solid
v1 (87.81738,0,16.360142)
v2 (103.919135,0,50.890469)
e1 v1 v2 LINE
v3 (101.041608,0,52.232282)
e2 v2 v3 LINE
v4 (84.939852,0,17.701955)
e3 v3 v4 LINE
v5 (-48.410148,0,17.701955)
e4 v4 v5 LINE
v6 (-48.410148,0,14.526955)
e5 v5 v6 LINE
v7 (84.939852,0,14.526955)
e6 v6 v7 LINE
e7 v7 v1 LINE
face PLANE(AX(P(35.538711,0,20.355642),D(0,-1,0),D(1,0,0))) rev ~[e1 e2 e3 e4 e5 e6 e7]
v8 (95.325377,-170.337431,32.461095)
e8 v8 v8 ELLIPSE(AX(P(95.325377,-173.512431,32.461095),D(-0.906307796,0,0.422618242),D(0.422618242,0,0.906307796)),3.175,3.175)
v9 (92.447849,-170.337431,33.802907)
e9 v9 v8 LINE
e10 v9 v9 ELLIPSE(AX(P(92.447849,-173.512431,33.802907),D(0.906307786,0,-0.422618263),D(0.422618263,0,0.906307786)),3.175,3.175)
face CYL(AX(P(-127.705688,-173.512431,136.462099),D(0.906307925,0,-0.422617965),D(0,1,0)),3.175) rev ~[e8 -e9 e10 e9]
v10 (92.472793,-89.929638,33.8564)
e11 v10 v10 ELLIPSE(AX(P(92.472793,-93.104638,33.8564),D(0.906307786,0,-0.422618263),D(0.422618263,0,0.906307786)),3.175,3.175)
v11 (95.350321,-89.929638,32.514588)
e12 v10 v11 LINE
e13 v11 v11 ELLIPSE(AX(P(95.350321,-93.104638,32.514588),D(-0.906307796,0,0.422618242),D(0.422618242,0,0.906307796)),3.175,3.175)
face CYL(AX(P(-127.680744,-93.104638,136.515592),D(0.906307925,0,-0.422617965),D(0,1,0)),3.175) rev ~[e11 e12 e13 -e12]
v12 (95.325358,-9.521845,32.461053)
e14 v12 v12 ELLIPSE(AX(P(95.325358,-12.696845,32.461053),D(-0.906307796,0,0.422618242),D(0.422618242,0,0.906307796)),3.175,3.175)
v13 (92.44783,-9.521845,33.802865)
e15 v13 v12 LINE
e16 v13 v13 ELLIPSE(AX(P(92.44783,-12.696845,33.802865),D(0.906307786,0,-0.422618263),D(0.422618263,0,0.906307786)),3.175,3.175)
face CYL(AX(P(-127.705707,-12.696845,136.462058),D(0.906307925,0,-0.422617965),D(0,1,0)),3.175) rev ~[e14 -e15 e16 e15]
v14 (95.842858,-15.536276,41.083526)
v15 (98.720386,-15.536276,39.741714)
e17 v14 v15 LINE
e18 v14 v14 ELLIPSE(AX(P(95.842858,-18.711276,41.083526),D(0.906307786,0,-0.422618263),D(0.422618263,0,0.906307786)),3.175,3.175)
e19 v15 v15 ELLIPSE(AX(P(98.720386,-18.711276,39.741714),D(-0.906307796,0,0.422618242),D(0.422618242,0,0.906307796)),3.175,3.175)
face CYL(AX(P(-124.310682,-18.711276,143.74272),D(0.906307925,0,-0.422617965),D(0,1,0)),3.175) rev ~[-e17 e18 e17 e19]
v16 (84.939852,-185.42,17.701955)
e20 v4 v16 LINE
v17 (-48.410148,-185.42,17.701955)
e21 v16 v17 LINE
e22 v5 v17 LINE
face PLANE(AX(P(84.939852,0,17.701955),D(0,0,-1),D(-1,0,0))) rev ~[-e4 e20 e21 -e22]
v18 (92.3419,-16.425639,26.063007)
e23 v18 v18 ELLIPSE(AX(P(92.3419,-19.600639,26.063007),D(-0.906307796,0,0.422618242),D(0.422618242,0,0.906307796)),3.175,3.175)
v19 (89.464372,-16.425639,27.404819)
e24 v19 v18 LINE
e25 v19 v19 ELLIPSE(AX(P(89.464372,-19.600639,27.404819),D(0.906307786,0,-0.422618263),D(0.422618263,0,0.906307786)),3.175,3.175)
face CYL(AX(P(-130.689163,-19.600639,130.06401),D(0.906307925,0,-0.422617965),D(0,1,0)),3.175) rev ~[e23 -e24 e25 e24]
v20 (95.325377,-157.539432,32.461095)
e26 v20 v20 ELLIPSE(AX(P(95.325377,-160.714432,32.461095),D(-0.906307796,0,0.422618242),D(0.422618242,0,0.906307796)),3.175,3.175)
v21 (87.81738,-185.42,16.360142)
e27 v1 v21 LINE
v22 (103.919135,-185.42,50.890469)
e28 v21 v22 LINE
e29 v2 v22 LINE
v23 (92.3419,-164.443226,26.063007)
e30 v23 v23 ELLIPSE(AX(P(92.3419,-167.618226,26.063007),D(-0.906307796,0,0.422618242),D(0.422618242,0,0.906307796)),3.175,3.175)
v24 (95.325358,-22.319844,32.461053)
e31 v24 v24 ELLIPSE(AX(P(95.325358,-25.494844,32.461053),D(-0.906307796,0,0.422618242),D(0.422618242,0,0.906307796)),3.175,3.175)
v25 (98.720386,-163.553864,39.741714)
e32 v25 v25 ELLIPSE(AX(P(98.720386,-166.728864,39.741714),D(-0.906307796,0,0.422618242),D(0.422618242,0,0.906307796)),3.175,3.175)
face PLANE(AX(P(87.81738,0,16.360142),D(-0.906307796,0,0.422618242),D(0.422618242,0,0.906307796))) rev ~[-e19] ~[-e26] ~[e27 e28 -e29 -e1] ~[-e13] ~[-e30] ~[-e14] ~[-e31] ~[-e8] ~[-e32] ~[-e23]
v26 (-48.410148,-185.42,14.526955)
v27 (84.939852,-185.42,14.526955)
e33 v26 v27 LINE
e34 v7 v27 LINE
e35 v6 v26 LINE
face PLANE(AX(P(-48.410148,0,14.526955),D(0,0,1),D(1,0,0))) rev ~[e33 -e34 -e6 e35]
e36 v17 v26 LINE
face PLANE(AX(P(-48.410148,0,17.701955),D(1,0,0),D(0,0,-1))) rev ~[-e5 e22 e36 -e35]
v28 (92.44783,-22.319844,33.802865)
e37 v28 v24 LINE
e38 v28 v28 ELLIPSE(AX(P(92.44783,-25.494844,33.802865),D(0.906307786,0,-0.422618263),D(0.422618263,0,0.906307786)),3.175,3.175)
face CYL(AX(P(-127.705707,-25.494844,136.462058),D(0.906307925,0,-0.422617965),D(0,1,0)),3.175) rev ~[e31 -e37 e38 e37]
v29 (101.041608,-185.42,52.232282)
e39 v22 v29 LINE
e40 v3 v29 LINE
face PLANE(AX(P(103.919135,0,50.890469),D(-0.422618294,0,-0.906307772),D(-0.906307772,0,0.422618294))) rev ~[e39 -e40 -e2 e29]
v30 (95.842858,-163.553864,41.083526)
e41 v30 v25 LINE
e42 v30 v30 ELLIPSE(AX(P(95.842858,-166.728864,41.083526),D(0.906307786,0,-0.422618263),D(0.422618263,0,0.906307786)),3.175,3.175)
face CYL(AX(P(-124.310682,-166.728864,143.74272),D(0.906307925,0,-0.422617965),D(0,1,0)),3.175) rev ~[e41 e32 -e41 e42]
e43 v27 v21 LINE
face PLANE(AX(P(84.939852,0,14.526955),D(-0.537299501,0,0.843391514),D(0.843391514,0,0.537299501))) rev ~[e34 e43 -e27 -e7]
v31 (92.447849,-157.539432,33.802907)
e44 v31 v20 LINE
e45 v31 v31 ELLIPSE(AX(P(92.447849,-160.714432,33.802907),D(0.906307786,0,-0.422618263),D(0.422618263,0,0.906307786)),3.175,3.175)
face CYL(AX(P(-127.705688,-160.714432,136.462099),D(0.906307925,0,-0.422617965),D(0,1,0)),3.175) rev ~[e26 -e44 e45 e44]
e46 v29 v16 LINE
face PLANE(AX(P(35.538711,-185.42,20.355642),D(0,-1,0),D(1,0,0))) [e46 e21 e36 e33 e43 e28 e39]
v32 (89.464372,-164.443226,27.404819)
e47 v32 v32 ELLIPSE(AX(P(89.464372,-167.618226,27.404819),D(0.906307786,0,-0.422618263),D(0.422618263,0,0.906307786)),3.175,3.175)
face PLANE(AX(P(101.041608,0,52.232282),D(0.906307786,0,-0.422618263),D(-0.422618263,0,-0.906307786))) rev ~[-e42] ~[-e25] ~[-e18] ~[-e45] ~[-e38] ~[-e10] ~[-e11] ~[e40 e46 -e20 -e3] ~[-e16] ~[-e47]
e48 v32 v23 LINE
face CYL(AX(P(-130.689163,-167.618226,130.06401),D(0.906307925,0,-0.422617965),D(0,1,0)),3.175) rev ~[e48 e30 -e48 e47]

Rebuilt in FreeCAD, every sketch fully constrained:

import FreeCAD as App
import Part
import Sketcher
from FreeCAD import Vector
Q = App.Units.Quantity

doc = App.newDocument("Part")
body = doc.addObject("PartDesign::Body", "Body")

# Sketch on XZ plane
sketch1 = doc.addObject("Sketcher::SketchObject", "Sketch")
body.addObject(sketch1)
sketch1.AttachmentSupport = (doc.XZ_Plane, [""])
sketch1.MapMode = "FlatFace"
sketch1.addGeometry(Part.LineSegment(Vector(84.9, 17.7, 0), Vector(-48.4, 17.7, 0)), False)
sketch1.addGeometry(Part.LineSegment(Vector(-48.4, 17.7, 0), Vector(-48.4, 14.5, 0)), False)
sketch1.addGeometry(Part.LineSegment(Vector(-48.4, 14.5, 0), Vector(84.9, 14.5, 0)), False)
sketch1.addGeometry(Part.LineSegment(Vector(84.9, 14.5, 0), Vector(87.8, 16.4, 0)), False)
sketch1.addGeometry(Part.LineSegment(Vector(87.8, 16.4, 0), Vector(103.9, 50.9, 0)), False)
sketch1.addGeometry(Part.LineSegment(Vector(103.9, 50.9, 0), Vector(101, 52.2, 0)), False)
sketch1.addGeometry(Part.LineSegment(Vector(101, 52.2, 0), Vector(84.9, 17.7, 0)), False)
sketch1.addConstraint(Sketcher.Constraint("Coincident", 0, 2, 1, 1))
sketch1.addConstraint(Sketcher.Constraint("Coincident", 1, 2, 2, 1))
sketch1.addConstraint(Sketcher.Constraint("Coincident", 2, 2, 3, 1))
sketch1.addConstraint(Sketcher.Constraint("Coincident", 3, 2, 4, 1))
sketch1.addConstraint(Sketcher.Constraint("Coincident", 4, 2, 5, 1))
sketch1.addConstraint(Sketcher.Constraint("Coincident", 5, 2, 6, 1))
sketch1.addConstraint(Sketcher.Constraint("Coincident", 6, 2, 0, 1))
sketch1.addConstraint(Sketcher.Constraint("Horizontal", 0))
sketch1.addConstraint(Sketcher.Constraint("Vertical", 1))
sketch1.addConstraint(Sketcher.Constraint("Horizontal", 2))
sketch1.addConstraint(Sketcher.Constraint("Perpendicular", 4, 5))
sketch1.addConstraint(Sketcher.Constraint("Perpendicular", 5, 6))
sketch1.addConstraint(Sketcher.Constraint("Vertical", 2, 2, 6, 2))
sketch1.addConstraint(Sketcher.Constraint("Equal", 4, 6))
sketch1.addConstraint(Sketcher.Constraint("Angle", 4, Q("65.000001 deg")))
sketch1.addConstraint(Sketcher.Constraint("Distance", 4, Q("1.5 in")))
sketch1.addConstraint(Sketcher.Constraint("DistanceX", 0, 2, 0, 1, Q("5.25 in")))
sketch1.addConstraint(Sketcher.Constraint("Angle", 3, Q("32.499993 deg")))
sketch1.addConstraint(Sketcher.Constraint("DistanceY", 1, 2, 1, 1, Q("0.125 in")))
sketch1.addConstraint(Sketcher.Constraint("DistanceY", -1, 1, 3, 2, Q("0.6441001 in")))
sketch1.addConstraint(Sketcher.Constraint("DistanceX", -1, 1, 2, 2, Q("84.939852 mm")))
pad1 = doc.addObject("PartDesign::Pad", "Pad")
body.addObject(pad1)
pad1.Profile = sketch1
pad1.Length = Q("7.3 in")

# Sketch on an angled plane
sketch2 = doc.addObject("Sketcher::SketchObject", "Sketch001")
body.addObject(sketch2)
sketch2.Placement = App.Placement(Vector(62.988836, 0, -29.372151), App.Rotation(Vector(0, -1, 0), Vector(0.422617965, 0, 0.906307925), Vector(-0.906307925, 0, 0.422617965), "ZXY"))
sketch2.addGeometry(Part.Circle(Vector(18.7, 77.7, 0), Vector(0, 0, 1), 3.2), False)
sketch2.addConstraint(Sketcher.Constraint("Diameter", 0, Q("0.25 in")))
sketch2.addConstraint(Sketcher.Constraint("DistanceY", -1, 1, 0, 3, Q("3.0606 in")))
sketch2.addConstraint(Sketcher.Constraint("DistanceX", -1, 1, 0, 3, Q("18.711276 mm")))
doc.recompute()
hole = doc.addObject("PartDesign::Hole", "Hole")
body.addObject(hole)
hole.Profile = sketch2
hole.ThreadType = "None"
hole.Diameter = Q("0.25 in")
hole.DepthType = "ThroughAll"

# Sketch on an angled plane
sketch3 = doc.addObject("Sketcher::SketchObject", "Sketch002")
body.addObject(sketch3)
sketch3.Placement = App.Placement(Vector(62.988836, 0, -29.372151), App.Rotation(Vector(0, -1, 0), Vector(0.422617965, 0, 0.906307925), Vector(-0.906307925, 0, 0.422617965), "ZXY"))
sketch3.addGeometry(Part.Circle(Vector(12.7, 69.7, 0), Vector(0, 0, 1), 3.2), False)
sketch3.addConstraint(Sketcher.Constraint("Diameter", 0, Q("0.25 in")))
sketch3.addConstraint(Sketcher.Constraint("DistanceY", -1, 1, 0, 3, Q("69.705918 mm")))
sketch3.addConstraint(Sketcher.Constraint("DistanceX", -1, 1, 0, 3, Q("12.696845 mm")))
doc.recompute()
hole2 = doc.addObject("PartDesign::Hole", "Hole001")
body.addObject(hole2)
hole2.Profile = sketch3
hole2.ThreadType = "None"
hole2.Diameter = Q("0.25 in")
hole2.DepthType = "ThroughAll"

# Sketch on an angled plane
sketch4 = doc.addObject("Sketcher::SketchObject", "Sketch003")
body.addObject(sketch4)
sketch4.Placement = App.Placement(Vector(62.988836, 0, -29.372151), App.Rotation(Vector(0, -1, 0), Vector(0.422617965, 0, 0.906307925), Vector(-0.906307925, 0, 0.422617965), "ZXY"))
sketch4.addGeometry(Part.Circle(Vector(19.6, 62.6, 0), Vector(0, 0, 1), 3.2), False)
sketch4.addConstraint(Sketcher.Constraint("Diameter", 0, Q("0.25 in")))
sketch4.addConstraint(Sketcher.Constraint("DistanceX", -1, 1, 0, 3, Q("19.600639 mm")))
sketch4.addConstraint(Sketcher.Constraint("DistanceY", -1, 1, 0, 3, Q("62.646455 mm")))
doc.recompute()
hole3 = doc.addObject("PartDesign::Hole", "Hole002")
body.addObject(hole3)
hole3.Profile = sketch4
hole3.ThreadType = "None"
hole3.Diameter = Q("0.25 in")
hole3.DepthType = "ThroughAll"

# Sketch on an angled plane
sketch5 = doc.addObject("Sketcher::SketchObject", "Sketch004")
body.addObject(sketch5)
sketch5.Placement = App.Placement(Vector(62.988836, 0, -29.372151), App.Rotation(Vector(0, -1, 0), Vector(0.422617965, 0, 0.906307925), Vector(-0.906307925, 0, 0.422617965), "ZXY"))
sketch5.addGeometry(Part.Circle(Vector(25.5, 69.7, 0), Vector(0, 0, 1), 3.2), False)
sketch5.addConstraint(Sketcher.Constraint("Diameter", 0, Q("0.25 in")))
sketch5.addConstraint(Sketcher.Constraint("DistanceY", -1, 1, 0, 3, Q("69.705918 mm")))
sketch5.addConstraint(Sketcher.Constraint("DistanceX", -1, 1, 0, 3, Q("25.494844 mm")))
doc.recompute()
hole4 = doc.addObject("PartDesign::Hole", "Hole003")
body.addObject(hole4)
hole4.Profile = sketch5
hole4.ThreadType = "None"
hole4.Diameter = Q("0.25 in")
hole4.DepthType = "ThroughAll"

# Sketch on an angled plane
sketch6 = doc.addObject("Sketcher::SketchObject", "Sketch005")
body.addObject(sketch6)
sketch6.Placement = App.Placement(Vector(62.988836, 0, -29.372151), App.Rotation(Vector(0, -1, 0), Vector(0.422617965, 0, 0.906307925), Vector(-0.906307925, 0, 0.422617965), "ZXY"))
sketch6.addGeometry(Part.Circle(Vector(166.7, 77.7, 0), Vector(0, 0, 1), 3.2), False)
sketch6.addConstraint(Sketcher.Constraint("Diameter", 0, Q("0.25 in")))
sketch6.addConstraint(Sketcher.Constraint("DistanceY", -1, 1, 0, 3, Q("3.0606 in")))
sketch6.addConstraint(Sketcher.Constraint("DistanceX", -1, 1, 0, 3, Q("166.728864 mm")))
doc.recompute()
hole5 = doc.addObject("PartDesign::Hole", "Hole004")
body.addObject(hole5)
hole5.Profile = sketch6
hole5.ThreadType = "None"
hole5.Diameter = Q("0.25 in")
hole5.DepthType = "ThroughAll"

# Sketch on an angled plane
sketch7 = doc.addObject("Sketcher::SketchObject", "Sketch006")
body.addObject(sketch7)
sketch7.Placement = App.Placement(Vector(62.988836, 0, -29.372151), App.Rotation(Vector(0, -1, 0), Vector(0.422617965, 0, 0.906307925), Vector(-0.906307925, 0, 0.422617965), "ZXY"))
sketch7.addGeometry(Part.Circle(Vector(160.7, 69.7, 0), Vector(0, 0, 1), 3.2), False)
sketch7.addConstraint(Sketcher.Constraint("Diameter", 0, Q("0.25 in")))
sketch7.addConstraint(Sketcher.Constraint("DistanceX", -1, 1, 0, 3, Q("160.714432 mm")))
sketch7.addConstraint(Sketcher.Constraint("DistanceY", -1, 1, 0, 3, Q("69.705964 mm")))
doc.recompute()
hole6 = doc.addObject("PartDesign::Hole", "Hole005")
body.addObject(hole6)
hole6.Profile = sketch7
hole6.ThreadType = "None"
hole6.Diameter = Q("0.25 in")
hole6.DepthType = "ThroughAll"

# Sketch on an angled plane
sketch8 = doc.addObject("Sketcher::SketchObject", "Sketch007")
body.addObject(sketch8)
sketch8.Placement = App.Placement(Vector(62.988836, 0, -29.372151), App.Rotation(Vector(0, -1, 0), Vector(0.422617965, 0, 0.906307925), Vector(-0.906307925, 0, 0.422617965), "ZXY"))
sketch8.addGeometry(Part.Circle(Vector(167.6, 62.6, 0), Vector(0, 0, 1), 3.2), False)
sketch8.addConstraint(Sketcher.Constraint("Diameter", 0, Q("0.25 in")))
sketch8.addConstraint(Sketcher.Constraint("DistanceX", -1, 1, 0, 3, Q("167.618226 mm")))
sketch8.addConstraint(Sketcher.Constraint("DistanceY", -1, 1, 0, 3, Q("62.646455 mm")))
doc.recompute()
hole7 = doc.addObject("PartDesign::Hole", "Hole006")
body.addObject(hole7)
hole7.Profile = sketch8
hole7.ThreadType = "None"
hole7.Diameter = Q("0.25 in")
hole7.DepthType = "ThroughAll"

# Sketch on an angled plane
sketch9 = doc.addObject("Sketcher::SketchObject", "Sketch008")
body.addObject(sketch9)
sketch9.Placement = App.Placement(Vector(62.988836, 0, -29.372151), App.Rotation(Vector(0, -1, 0), Vector(0.422617965, 0, 0.906307925), Vector(-0.906307925, 0, 0.422617965), "ZXY"))
sketch9.addGeometry(Part.Circle(Vector(173.5, 69.7, 0), Vector(0, 0, 1), 3.2), False)
sketch9.addConstraint(Sketcher.Constraint("Diameter", 0, Q("0.25 in")))
sketch9.addConstraint(Sketcher.Constraint("DistanceX", -1, 1, 0, 3, Q("173.512431 mm")))
sketch9.addConstraint(Sketcher.Constraint("DistanceY", -1, 1, 0, 3, Q("69.705964 mm")))
doc.recompute()
hole8 = doc.addObject("PartDesign::Hole", "Hole007")
body.addObject(hole8)
hole8.Profile = sketch9
hole8.ThreadType = "None"
hole8.Diameter = Q("0.25 in")
hole8.DepthType = "ThroughAll"

# Sketch on an angled plane
sketch10 = doc.addObject("Sketcher::SketchObject", "Sketch009")
body.addObject(sketch10)
sketch10.Placement = App.Placement(Vector(62.988836, 0, -29.372151), App.Rotation(Vector(0, -1, 0), Vector(0.422617965, 0, 0.906307925), Vector(-0.906307925, 0, 0.422617965), "ZXY"))
sketch10.addGeometry(Part.Circle(Vector(93.1, 69.8, 0), Vector(0, 0, 1), 3.2), False)
sketch10.addConstraint(Sketcher.Constraint("Diameter", 0, Q("0.25 in")))
sketch10.addConstraint(Sketcher.Constraint("DistanceX", -1, 1, 0, 3, Q("93.104638 mm")))
sketch10.addConstraint(Sketcher.Constraint("DistanceY", -1, 1, 0, 3, Q("69.764987 mm")))
doc.recompute()
hole9 = doc.addObject("PartDesign::Hole", "Hole008")
body.addObject(hole9)
hole9.Profile = sketch10
hole9.ThreadType = "None"
hole9.Diameter = Q("0.25 in")
hole9.DepthType = "ThroughAll"

doc.recompute()
